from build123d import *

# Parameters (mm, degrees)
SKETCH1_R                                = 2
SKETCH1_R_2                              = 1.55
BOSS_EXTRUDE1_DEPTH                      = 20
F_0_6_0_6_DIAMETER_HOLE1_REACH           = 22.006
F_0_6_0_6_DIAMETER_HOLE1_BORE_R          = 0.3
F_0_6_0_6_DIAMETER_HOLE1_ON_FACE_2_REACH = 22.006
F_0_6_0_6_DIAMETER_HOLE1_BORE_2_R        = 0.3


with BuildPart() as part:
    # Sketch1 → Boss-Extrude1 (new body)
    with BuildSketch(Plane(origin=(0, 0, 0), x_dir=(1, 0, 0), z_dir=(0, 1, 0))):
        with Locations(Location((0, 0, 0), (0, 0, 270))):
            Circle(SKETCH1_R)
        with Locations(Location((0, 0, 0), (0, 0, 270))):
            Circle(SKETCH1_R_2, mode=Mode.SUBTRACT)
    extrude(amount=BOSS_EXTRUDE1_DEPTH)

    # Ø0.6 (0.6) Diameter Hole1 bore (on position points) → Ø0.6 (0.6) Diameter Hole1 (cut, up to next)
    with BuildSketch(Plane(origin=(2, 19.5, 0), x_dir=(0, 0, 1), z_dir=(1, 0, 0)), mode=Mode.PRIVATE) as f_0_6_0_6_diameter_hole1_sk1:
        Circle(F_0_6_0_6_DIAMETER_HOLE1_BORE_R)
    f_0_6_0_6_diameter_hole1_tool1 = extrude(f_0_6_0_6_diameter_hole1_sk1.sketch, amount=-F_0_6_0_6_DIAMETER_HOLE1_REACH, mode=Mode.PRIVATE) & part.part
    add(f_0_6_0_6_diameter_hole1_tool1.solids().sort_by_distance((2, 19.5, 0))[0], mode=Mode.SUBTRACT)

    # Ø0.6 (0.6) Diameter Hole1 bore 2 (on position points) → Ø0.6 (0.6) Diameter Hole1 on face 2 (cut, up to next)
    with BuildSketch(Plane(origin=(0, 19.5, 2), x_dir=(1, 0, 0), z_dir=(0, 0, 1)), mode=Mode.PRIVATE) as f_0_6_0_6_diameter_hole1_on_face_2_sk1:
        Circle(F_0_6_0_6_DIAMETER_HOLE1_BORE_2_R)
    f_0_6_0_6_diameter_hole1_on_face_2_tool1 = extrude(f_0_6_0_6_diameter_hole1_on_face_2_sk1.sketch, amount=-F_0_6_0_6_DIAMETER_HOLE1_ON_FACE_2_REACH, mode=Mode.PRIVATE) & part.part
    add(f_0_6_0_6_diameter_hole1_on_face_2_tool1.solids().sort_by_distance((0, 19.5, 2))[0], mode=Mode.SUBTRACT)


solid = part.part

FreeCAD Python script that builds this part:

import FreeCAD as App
import Part
import Sketcher

V = App.Vector
Q = App.Units.Quantity

doc = App.newDocument("Part")
body = doc.addObject("PartDesign::Body", "Body")

# Sketch on XZ plane
sketch1 = body.newObject("Sketcher::SketchObject", "Sketch")
sketch1.AttachmentSupport = (doc.getObject("XZ_Plane"), [""])
sketch1.MapMode = "FlatFace"
sketch1.addGeometry([
    Part.Circle(V(0, 0, 0), V(0, 0, 1), 2),
    Part.Circle(V(0, 0, 0), V(0, 0, 1), 1.55),
], False)
sketch1.addConstraint([
    Sketcher.Constraint("Coincident", 0, 3, -1, 1),
    Sketcher.Constraint("Coincident", 1, 3, -1, 1),
    Sketcher.Constraint("Diameter", 0, Q("4 mm")),
    Sketcher.Constraint("Diameter", 1, Q("3.1 mm")),
])
pad1 = body.newObject("PartDesign::Pad", "Pad")
pad1.Profile = sketch1
pad1.Length = 20
pad1.Reversed = True

# Sketch on YZ plane
sketch2 = body.newObject("Sketcher::SketchObject", "Sketch001")
sketch2.AttachmentSupport = (doc.getObject("YZ_Plane"), [""])
sketch2.MapMode = "FlatFace"
sketch2.AttachmentOffset = App.Placement(V(0, 0, 2), App.Rotation())
sketch2.addGeometry(Part.Circle(V(19.5, 0, 0), V(0, 0, 1), 0.3), False)
sketch2.addConstraint([
    Sketcher.Constraint("PointOnObject", 0, 3, -1),
    Sketcher.Constraint("Diameter", 0, Q("0.6 mm")),
    Sketcher.Constraint("DistanceX", -1, 1, 0, 3, Q("19.5 mm")),
])
pocket1 = body.newObject("PartDesign::Pocket", "Pocket")
pocket1.Profile = sketch2
pocket1.Length = 0.479309

# Sketch on XY plane
sketch3 = body.newObject("Sketcher::SketchObject", "Sketch002")
sketch3.AttachmentSupport = (doc.getObject("XY_Plane"), [""])
sketch3.MapMode = "FlatFace"
sketch3.AttachmentOffset = App.Placement(V(0, 0, 2), App.Rotation())
sketch3.addGeometry(Part.Circle(V(0, 19.5, 0), V(0, 0, 1), 0.3), False)
sketch3.addConstraint([
    Sketcher.Constraint("PointOnObject", 0, 3, -2),
    Sketcher.Constraint("Diameter", 0, Q("0.6 mm")),
    Sketcher.Constraint("DistanceY", -1, 1, 0, 3, Q("19.5 mm")),
])
pocket2 = body.newObject("PartDesign::Pocket", "Pocket001")
pocket2.Profile = sketch3
pocket2.Type = "UpToFirst"

doc.recompute()
